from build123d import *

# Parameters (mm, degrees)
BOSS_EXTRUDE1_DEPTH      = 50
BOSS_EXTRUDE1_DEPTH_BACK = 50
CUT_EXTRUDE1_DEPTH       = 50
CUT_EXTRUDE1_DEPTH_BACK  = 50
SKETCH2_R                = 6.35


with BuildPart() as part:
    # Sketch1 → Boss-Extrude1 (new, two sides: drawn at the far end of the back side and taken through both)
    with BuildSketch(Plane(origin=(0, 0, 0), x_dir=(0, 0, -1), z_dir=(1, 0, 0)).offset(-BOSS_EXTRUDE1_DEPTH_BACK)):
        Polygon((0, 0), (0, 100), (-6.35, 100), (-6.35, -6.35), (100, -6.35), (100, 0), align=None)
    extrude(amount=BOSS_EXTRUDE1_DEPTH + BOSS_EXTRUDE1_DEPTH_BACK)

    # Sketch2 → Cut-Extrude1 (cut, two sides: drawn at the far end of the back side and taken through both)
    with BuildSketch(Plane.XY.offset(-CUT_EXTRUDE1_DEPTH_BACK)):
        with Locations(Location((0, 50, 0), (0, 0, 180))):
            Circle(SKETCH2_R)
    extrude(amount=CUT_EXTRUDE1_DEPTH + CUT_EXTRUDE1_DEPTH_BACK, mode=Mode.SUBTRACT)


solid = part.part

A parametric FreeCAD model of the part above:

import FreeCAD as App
import Part
import Sketcher

V = App.Vector


def add_polygon(sketch, points):
    """Adds a closed chain of lines whose ends are joined by coincident constraints."""
    first, n = sketch.GeometryCount, len(points)
    for a, b in zip(points, points[1:] + points[:1]):
        sketch.addGeometry(Part.LineSegment(App.Vector(*a, 0), App.Vector(*b, 0)), False)
    for i in range(n):
        sketch.addConstraint(Sketcher.Constraint("Coincident", first + i, 2, first + (i + 1) % n, 1))

doc = App.newDocument("Part")
body = doc.addObject("PartDesign::Body", "Body")

sketch1 = body.newObject("Sketcher::SketchObject", "Sketch")
sketch1.AttachmentSupport = (doc.getObject("YZ_Plane"), [""])
sketch1.MapMode = "FlatFace"
add_polygon(sketch1, [(0, 0), (100, 0), (100, 6), (-6, 6), (-6, -100), (0, -100)])
sketch1.addConstraint([
    Sketcher.Constraint("Horizontal", 0),
    Sketcher.Constraint("Vertical", 1),
    Sketcher.Constraint("Horizontal", 2),
    Sketcher.Constraint("Vertical", 3),
    Sketcher.Constraint("Horizontal", 4),
    Sketcher.Constraint("Vertical", 5),
    Sketcher.Constraint("Coincident", 5, 2, -1, 1),
    Sketcher.Constraint("Equal", 4, 1),
    Sketcher.Constraint("Equal", 2, 3),
    Sketcher.Constraint("DistanceX", 0, 1, 0, 2, 100.0),
    Sketcher.Constraint("DistanceX", 2, 2, 2, 1, 106.35),
])
pad1 = body.newObject("PartDesign::Pad", "Pad")
pad1.Profile = sketch1
pad1.Type = "TwoLengths"
pad1.Length = 50
pad1.Length2 = 50

sketch2 = body.newObject("Sketcher::SketchObject", "Sketch001")
sketch2.AttachmentSupport = (doc.getObject("XY_Plane"), [""])
sketch2.MapMode = "FlatFace"
sketch2.addGeometry(Part.Circle(V(0, 50, 0), V(0, 0, 1), 6), False)
sketch2.addConstraint([
    Sketcher.Constraint("PointOnObject", 0, 3, -2),
    Sketcher.Constraint("Diameter", 0, 12.7),
    Sketcher.Constraint("DistanceY", -1, 1, 0, 3, 50.0),
])
pocket1 = body.newObject("PartDesign::Pocket", "Pocket")
pocket1.Profile = sketch2
pocket1.Type = "ThroughAll"
pocket1.Midplane = True

doc.recompute()
